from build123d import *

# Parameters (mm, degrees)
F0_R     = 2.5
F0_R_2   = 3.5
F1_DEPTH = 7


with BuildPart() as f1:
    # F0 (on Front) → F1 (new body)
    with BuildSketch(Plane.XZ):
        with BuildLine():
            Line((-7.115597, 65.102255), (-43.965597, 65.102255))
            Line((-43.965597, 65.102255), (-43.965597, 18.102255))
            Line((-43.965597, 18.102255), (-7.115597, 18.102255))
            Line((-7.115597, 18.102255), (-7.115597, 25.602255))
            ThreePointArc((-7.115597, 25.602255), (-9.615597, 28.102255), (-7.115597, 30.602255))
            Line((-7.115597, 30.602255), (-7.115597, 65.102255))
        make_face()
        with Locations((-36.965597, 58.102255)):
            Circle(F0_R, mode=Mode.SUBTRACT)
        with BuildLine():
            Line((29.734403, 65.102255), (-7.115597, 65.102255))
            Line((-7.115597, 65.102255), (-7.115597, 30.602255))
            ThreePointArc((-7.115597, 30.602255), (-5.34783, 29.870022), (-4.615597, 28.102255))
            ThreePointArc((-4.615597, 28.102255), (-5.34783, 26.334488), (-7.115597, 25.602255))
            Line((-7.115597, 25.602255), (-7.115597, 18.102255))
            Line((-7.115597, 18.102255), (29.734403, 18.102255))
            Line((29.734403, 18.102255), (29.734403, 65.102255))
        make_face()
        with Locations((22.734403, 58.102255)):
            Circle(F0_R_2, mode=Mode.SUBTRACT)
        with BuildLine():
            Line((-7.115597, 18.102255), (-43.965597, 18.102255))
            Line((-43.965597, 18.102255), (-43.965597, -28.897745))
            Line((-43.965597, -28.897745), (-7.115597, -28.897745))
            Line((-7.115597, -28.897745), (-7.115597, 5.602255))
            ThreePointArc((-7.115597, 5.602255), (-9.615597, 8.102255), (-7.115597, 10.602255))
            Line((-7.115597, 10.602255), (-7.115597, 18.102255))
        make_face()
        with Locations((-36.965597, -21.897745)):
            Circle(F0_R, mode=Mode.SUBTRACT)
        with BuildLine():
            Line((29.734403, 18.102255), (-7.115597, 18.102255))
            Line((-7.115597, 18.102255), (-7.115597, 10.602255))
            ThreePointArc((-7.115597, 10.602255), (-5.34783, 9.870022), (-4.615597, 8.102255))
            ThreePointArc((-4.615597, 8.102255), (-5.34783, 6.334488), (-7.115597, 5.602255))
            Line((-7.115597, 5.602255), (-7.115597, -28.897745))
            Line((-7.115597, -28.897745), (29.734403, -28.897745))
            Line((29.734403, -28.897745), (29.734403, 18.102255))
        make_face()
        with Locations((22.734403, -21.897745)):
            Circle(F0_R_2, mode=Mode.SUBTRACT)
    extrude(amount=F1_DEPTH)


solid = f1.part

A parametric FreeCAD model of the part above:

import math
import FreeCAD as App
import Part
import Sketcher
from FreeCAD import Vector


def add_polygon(sketch, points):
    """Adds a closed chain of lines whose ends are joined by coincident constraints."""
    first, n = sketch.GeometryCount, len(points)
    for a, b in zip(points, points[1:] + points[:1]):
        sketch.addGeometry(Part.LineSegment(App.Vector(*a, 0), App.Vector(*b, 0)), False)
    for i in range(n):
        sketch.addConstraint(Sketcher.Constraint("Coincident", first + i, 2, first + (i + 1) % n, 1))

doc = App.newDocument("Part")
params = doc.addObject("Spreadsheet::Sheet", "Params")
for row, (alias, value) in enumerate([
    ("sketch1_diameter", "5 mm"),
    ("sketch1_diameter2", "7 mm"),
    ("sketch1_height", "94 mm"),
    ("sketch1_width", "73.7 mm"),
    ("pad1_length", "7 mm"),
], start=1):
    params.set(f"A{row}", alias)
    params.set(f"B{row}", "=" + value)
    params.setAlias(f"B{row}", alias)

body = doc.addObject("PartDesign::Body", "Body")

sketch1 = doc.addObject("Sketcher::SketchObject", "Sketch")
body.addObject(sketch1)
sketch1.AttachmentSupport = (doc.XZ_Plane, [""])
sketch1.MapMode = "FlatFace"
add_polygon(sketch1, [(-43.965597, 65.102255), (-43.965597, -28.897745), (29.734403, -28.897745), (29.734403, 65.102255)])
sketch1.addGeometry(Part.Circle(Vector(-36.965597, -21.897745, 0), Vector(0, 0, 1), 2.5), False)
sketch1.addGeometry(Part.ArcOfCircle(Part.Circle(Vector(-7.115597, 8.102255, 0), Vector(0, 0, 1), 2.5), math.radians(90), math.radians(270)), False)
sketch1.addGeometry(Part.ArcOfCircle(Part.Circle(Vector(-7.115597, 8.102255, 0), Vector(0, 0, 1), 2.5), math.radians(-0.000004), math.radians(90.000004)), False)
sketch1.addGeometry(Part.ArcOfCircle(Part.Circle(Vector(-7.115597, 8.102255, 0), Vector(0, 0, 1), 2.5), math.radians(-90.000004), math.radians(0.000004)), False)
sketch1.addGeometry(Part.Circle(Vector(22.734403, -21.897745, 0), Vector(0, 0, 1), 3.5), False)
sketch1.addGeometry(Part.ArcOfCircle(Part.Circle(Vector(-7.115597, 28.102255, 0), Vector(0, 0, 1), 2.5), math.radians(90), math.radians(270)), False)
sketch1.addGeometry(Part.ArcOfCircle(Part.Circle(Vector(-7.115597, 28.102255, 0), Vector(0, 0, 1), 2.5), math.radians(-0.000004), math.radians(90.000004)), False)
sketch1.addGeometry(Part.ArcOfCircle(Part.Circle(Vector(-7.115597, 28.102255, 0), Vector(0, 0, 1), 2.5), math.radians(-90.000004), math.radians(0.000004)), False)
sketch1.addGeometry(Part.Circle(Vector(-36.965597, 58.102255, 0), Vector(0, 0, 1), 2.5), False)
sketch1.addGeometry(Part.Circle(Vector(22.734403, 58.102255, 0), Vector(0, 0, 1), 3.5), False)
sketch1.addConstraint([
    Sketcher.Constraint("Tangent", 5, 1, 6, 2),
    Sketcher.Constraint("Tangent", 6, 1, 7, 2),
    Sketcher.Constraint("Tangent", 7, 1, 5, 2),
    Sketcher.Constraint("Tangent", 9, 1, 10, 2),
    Sketcher.Constraint("Tangent", 10, 1, 11, 2),
    Sketcher.Constraint("Tangent", 11, 1, 9, 2),
    Sketcher.Constraint("Vertical", 0),
    Sketcher.Constraint("Horizontal", 1),
    Sketcher.Constraint("Vertical", 2),
    Sketcher.Constraint("Horizontal", 3),
    Sketcher.Constraint("Equal", 4, 5),
    Sketcher.Constraint("Equal", 7, 9),
    Sketcher.Constraint("Equal", 11, 12),
    Sketcher.Constraint("Equal", 8, 13),
    Sketcher.Constraint("Horizontal", 4, 3, 8, 3),
    Sketcher.Constraint("Horizontal", 12, 3, 13, 3),
    Sketcher.Constraint("Horizontal", 7, 3, 6, 1),
    Sketcher.Constraint("Horizontal", 11, 3, 10, 1),
    Sketcher.Constraint("Vertical", 7, 3, 9, 3),
    Sketcher.Constraint("Vertical", 4, 3, 12, 3),
    Sketcher.Constraint("Vertical", 8, 3, 13, 3),
    Sketcher.Constraint("Vertical", 11, 3, 5, 1),
    Sketcher.Constraint("Vertical", 5, 1, 7, 1),
    Sketcher.Constraint("Vertical", 7, 1, 9, 1),
    Sketcher.Constraint("Vertical", 9, 1, 11, 1),
    Sketcher.Constraint("Diameter", 4, 5.0),
    Sketcher.Constraint("Diameter", 8, 7.0),
    Sketcher.Constraint("DistanceY", 0, 2, 0, 1, 94.0),
    Sketcher.Constraint("DistanceX", 1, 1, 1, 2, 73.7),
    Sketcher.Constraint("DistanceY", 4, 3, 5, 3, 30.0),
    Sketcher.Constraint("DistanceY", 6, 3, 9, 3, 20.0),
    Sketcher.Constraint("DistanceY", 10, 3, 12, 3, 30.0),
    Sketcher.Constraint("DistanceX", 0, 2, 4, 3, 7.0),
    Sketcher.Constraint("DistanceY", 0, 2, 4, 3, 7.0),
    Sketcher.Constraint("DistanceX", 8, 3, 1, 2, 7.0),
    Sketcher.Constraint("DistanceX", 4, 3, 5, 3, 29.85),
    Sketcher.Constraint("DistanceX", 4, 3, -1, 1, 36.965597),
    Sketcher.Constraint("DistanceY", 4, 3, -1, 1, 21.897745),
])
sketch1.setExpression("Constraints[29]", "Params.sketch1_diameter")
sketch1.setExpression("Constraints[30]", "Params.sketch1_diameter2")
sketch1.setExpression("Constraints[31]", "Params.sketch1_height")
sketch1.setExpression("Constraints[32]", "Params.sketch1_width")
pad1 = doc.addObject("PartDesign::Pad", "Pad")
body.addObject(pad1)
pad1.Profile = sketch1
pad1.setExpression("Length", "Params.pad1_length")

doc.recompute()
